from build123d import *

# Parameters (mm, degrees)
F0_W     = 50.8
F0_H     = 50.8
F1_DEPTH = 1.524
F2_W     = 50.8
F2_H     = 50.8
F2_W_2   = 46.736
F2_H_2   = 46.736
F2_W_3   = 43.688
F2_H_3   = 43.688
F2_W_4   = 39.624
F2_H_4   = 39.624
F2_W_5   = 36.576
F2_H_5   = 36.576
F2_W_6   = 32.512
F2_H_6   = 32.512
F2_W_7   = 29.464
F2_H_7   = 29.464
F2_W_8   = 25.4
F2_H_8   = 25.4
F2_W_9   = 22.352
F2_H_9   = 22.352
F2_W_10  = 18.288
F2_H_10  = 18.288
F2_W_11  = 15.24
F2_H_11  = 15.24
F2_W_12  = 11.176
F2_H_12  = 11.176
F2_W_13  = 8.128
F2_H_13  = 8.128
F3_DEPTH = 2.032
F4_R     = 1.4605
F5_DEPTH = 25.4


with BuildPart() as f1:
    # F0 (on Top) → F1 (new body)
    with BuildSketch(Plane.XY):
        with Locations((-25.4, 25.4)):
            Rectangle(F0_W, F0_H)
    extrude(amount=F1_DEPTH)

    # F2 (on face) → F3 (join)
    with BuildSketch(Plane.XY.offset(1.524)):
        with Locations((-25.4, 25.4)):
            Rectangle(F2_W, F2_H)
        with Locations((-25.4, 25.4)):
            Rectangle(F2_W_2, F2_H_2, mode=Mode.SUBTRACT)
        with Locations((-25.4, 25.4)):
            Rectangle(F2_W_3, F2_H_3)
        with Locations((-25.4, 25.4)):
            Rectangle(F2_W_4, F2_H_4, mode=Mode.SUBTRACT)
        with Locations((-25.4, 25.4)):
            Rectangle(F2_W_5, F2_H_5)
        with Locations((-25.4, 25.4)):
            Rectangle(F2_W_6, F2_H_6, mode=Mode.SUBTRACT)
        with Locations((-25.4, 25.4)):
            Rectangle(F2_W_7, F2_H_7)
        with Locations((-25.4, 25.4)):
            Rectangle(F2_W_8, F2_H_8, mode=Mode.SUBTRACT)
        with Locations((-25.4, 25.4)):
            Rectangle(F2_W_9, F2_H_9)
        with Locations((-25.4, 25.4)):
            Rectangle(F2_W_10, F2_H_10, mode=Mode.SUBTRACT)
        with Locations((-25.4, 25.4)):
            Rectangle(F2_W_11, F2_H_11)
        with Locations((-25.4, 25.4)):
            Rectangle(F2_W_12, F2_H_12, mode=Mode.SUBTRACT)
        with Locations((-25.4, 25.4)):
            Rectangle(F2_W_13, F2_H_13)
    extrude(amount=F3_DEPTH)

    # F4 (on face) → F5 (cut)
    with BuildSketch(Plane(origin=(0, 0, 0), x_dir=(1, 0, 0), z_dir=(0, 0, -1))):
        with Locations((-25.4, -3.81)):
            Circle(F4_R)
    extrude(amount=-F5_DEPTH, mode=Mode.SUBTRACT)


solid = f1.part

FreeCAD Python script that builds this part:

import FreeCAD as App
import Part
import Sketcher
from FreeCAD import Vector
Q = App.Units.Quantity


def add_polygon(sketch, points):
    """Adds a closed chain of lines whose ends are joined by coincident constraints."""
    first, n = sketch.GeometryCount, len(points)
    for a, b in zip(points, points[1:] + points[:1]):
        sketch.addGeometry(Part.LineSegment(App.Vector(*a, 0), App.Vector(*b, 0)), False)
    for i in range(n):
        sketch.addConstraint(Sketcher.Constraint("Coincident", first + i, 2, first + (i + 1) % n, 1))

doc = App.newDocument("Part")
params = doc.addObject("Spreadsheet::Sheet", "Params")
for row, (alias, value) in enumerate([
    ("sketch1_width", "2 in"),
    ("pad1_length", "0.06 in"),
    ("sketch2_width", "2 in"),
    ("sketch2_width2", "1 in"),
    ("sketch2_width3", "0.6 in"),
    ("sketch2_width4", "1.84 in"),
    ("sketch2_width5", "1.72 in"),
    ("pad2_length", "0.08 in"),
    ("sketch3_diameter", "0.115 in"),
    ("pocket1_length", "1 in"),
], start=1):
    params.set(f"A{row}", alias)
    params.set(f"B{row}", "=" + value)
    params.setAlias(f"B{row}", alias)

body = doc.addObject("PartDesign::Body", "Body")

# Sketch on XY plane
sketch1 = body.newObject("Sketcher::SketchObject", "Sketch")
sketch1.AttachmentSupport = (doc.getObject("XY_Plane"), [""])
sketch1.MapMode = "FlatFace"
add_polygon(sketch1, [(-50.8, 50.8), (-50.8, 0), (0, 0), (0, 50.8)])  # lines 0-3
sketch1.addConstraint([
    Sketcher.Constraint("Vertical", 0),
    Sketcher.Constraint("Horizontal", 1),
    Sketcher.Constraint("Vertical", 2),
    Sketcher.Constraint("Horizontal", 3),
    Sketcher.Constraint("Coincident", 1, 2, -1, 1),
    Sketcher.Constraint("Equal", 3, 0),
    Sketcher.Constraint("DistanceX", 1, 1, 1, 2, Q("2 in")),
])
sketch1.setExpression("Constraints[10]", "Params.sketch1_width")
pad1 = body.newObject("PartDesign::Pad", "Pad")
pad1.Profile = sketch1
pad1.setExpression("Length", "Params.pad1_length")

# Sketch on XY plane
sketch2 = body.newObject("Sketcher::SketchObject", "Sketch001")
sketch2.AttachmentSupport = (doc.getObject("XY_Plane"), [""])
sketch2.MapMode = "FlatFace"
sketch2.AttachmentOffset = App.Placement(Vector(0, 0, 0.06 * 25.4), App.Rotation())
add_polygon(sketch2, [(-50.8, 50.8), (-50.8, 0), (0, 0), (0, 50.8)])  # lines 0-3
add_polygon(sketch2, [(-2.032, 2.032), (-48.768, 2.032), (-48.768, 48.768), (-2.032, 48.768)])  # lines 4-7
add_polygon(sketch2, [(-47.244, 47.244), (-47.244, 3.556), (-3.556, 3.556), (-3.556, 47.244)])  # lines 8-11
add_polygon(sketch2, [(-5.588, 5.588), (-45.212, 5.588), (-45.212, 45.212), (-5.588, 45.212)])  # lines 12-15
add_polygon(sketch2, [(-43.688, 43.688), (-43.688, 7.112), (-7.112, 7.112), (-7.112, 43.688)])  # lines 16-19
add_polygon(sketch2, [(-9.144, 9.144), (-41.656, 9.144), (-41.656, 41.656), (-9.144, 41.656)])  # lines 20-23
add_polygon(sketch2, [(-40.132, 40.132), (-40.132, 10.668), (-10.668, 10.668), (-10.668, 40.132)])  # lines 24-27
add_polygon(sketch2, [(-12.7, 12.7), (-38.1, 12.7), (-38.1, 38.1), (-12.7, 38.1)])  # lines 28-31
add_polygon(sketch2, [(-36.576, 36.576), (-36.576, 14.224), (-14.224, 14.224), (-14.224, 36.576)])  # lines 32-35
add_polygon(sketch2, [(-16.256, 16.256), (-34.544, 16.256), (-34.544, 34.544), (-16.256, 34.544)])  # lines 36-39
add_polygon(sketch2, [(-33.02, 33.02), (-33.02, 17.78), (-17.78, 17.78), (-17.78, 33.02)])  # lines 40-43
add_polygon(sketch2, [(-19.812, 19.812), (-30.988, 19.812), (-30.988, 30.988), (-19.812, 30.988)])  # lines 44-47
add_polygon(sketch2, [(-29.464, 29.464), (-29.464, 21.336), (-21.336, 21.336), (-21.336, 29.464)])  # lines 48-51
sketch2.addConstraint([
    Sketcher.Constraint("Vertical", 0),
    Sketcher.Constraint("Horizontal", 1),
    Sketcher.Constraint("Vertical", 2),
    Sketcher.Constraint("Horizontal", 3),
    Sketcher.Constraint("Horizontal", 4),
    Sketcher.Constraint("Vertical", 5),
    Sketcher.Constraint("Horizontal", 6),
    Sketcher.Constraint("Vertical", 7),
    Sketcher.Constraint("Vertical", 8),
    Sketcher.Constraint("Horizontal", 9),
    Sketcher.Constraint("Vertical", 10),
    Sketcher.Constraint("Horizontal", 11),
    Sketcher.Constraint("Horizontal", 12),
    Sketcher.Constraint("Vertical", 13),
    Sketcher.Constraint("Horizontal", 14),
    Sketcher.Constraint("Vertical", 15),
    Sketcher.Constraint("Vertical", 16),
    Sketcher.Constraint("Horizontal", 17),
    Sketcher.Constraint("Vertical", 18),
    Sketcher.Constraint("Horizontal", 19),
    Sketcher.Constraint("Horizontal", 20),
    Sketcher.Constraint("Vertical", 21),
    Sketcher.Constraint("Horizontal", 22),
    Sketcher.Constraint("Vertical", 23),
    Sketcher.Constraint("Vertical", 24),
    Sketcher.Constraint("Horizontal", 25),
    Sketcher.Constraint("Vertical", 26),
    Sketcher.Constraint("Horizontal", 27),
    Sketcher.Constraint("Horizontal", 28),
    Sketcher.Constraint("Vertical", 29),
    Sketcher.Constraint("Horizontal", 30),
    Sketcher.Constraint("Vertical", 31),
    Sketcher.Constraint("Vertical", 32),
    Sketcher.Constraint("Horizontal", 33),
    Sketcher.Constraint("Vertical", 34),
    Sketcher.Constraint("Horizontal", 35),
    Sketcher.Constraint("Horizontal", 36),
    Sketcher.Constraint("Vertical", 37),
    Sketcher.Constraint("Horizontal", 38),
    Sketcher.Constraint("Vertical", 39),
    Sketcher.Constraint("Vertical", 40),
    Sketcher.Constraint("Horizontal", 41),
    Sketcher.Constraint("Vertical", 42),
    Sketcher.Constraint("Horizontal", 43),
    Sketcher.Constraint("Horizontal", 44),
    Sketcher.Constraint("Vertical", 45),
    Sketcher.Constraint("Horizontal", 46),
    Sketcher.Constraint("Vertical", 47),
    Sketcher.Constraint("Vertical", 48),
    Sketcher.Constraint("Horizontal", 49),
    Sketcher.Constraint("Vertical", 50),
    Sketcher.Constraint("Horizontal", 51),
    Sketcher.Constraint("Coincident", 1, 2, -1, 1),
    Sketcher.Constraint("Equal", 3, 0),
    Sketcher.Constraint("Equal", 6, 5),
    Sketcher.Constraint("Equal", 11, 8),
    Sketcher.Constraint("Equal", 14, 13),
    Sketcher.Constraint("Equal", 19, 16),
    Sketcher.Constraint("Equal", 22, 21),
    Sketcher.Constraint("Equal", 27, 24),
    Sketcher.Constraint("Equal", 30, 29),
    Sketcher.Constraint("Equal", 35, 32),
    Sketcher.Constraint("Equal", 38, 37),
    Sketcher.Constraint("Equal", 43, 40),
    Sketcher.Constraint("Equal", 46, 45),
    Sketcher.Constraint("Equal", 51, 48),
    Sketcher.Constraint("DistanceX", 1, 1, 1, 2, Q("2 in")),
    Sketcher.Constraint("DistanceX", 28, 2, 28, 1, Q("1 in")),
    Sketcher.Constraint("DistanceX", 41, 1, 41, 2, Q("0.6 in")),
    Sketcher.Constraint("DistanceX", 4, 2, 4, 1, Q("1.84 in")),
    Sketcher.Constraint("DistanceX", 9, 1, 9, 2, Q("1.72 in")),
    Sketcher.Constraint("DistanceX", 12, 2, 12, 1, Q("1.56 in")),
    Sketcher.Constraint("DistanceX", 17, 1, 17, 2, Q("1.44 in")),
    Sketcher.Constraint("DistanceX", 20, 2, 20, 1, Q("1.28 in")),
    Sketcher.Constraint("DistanceX", 25, 1, 25, 2, Q("1.16 in")),
    Sketcher.Constraint("DistanceX", 33, 1, 33, 2, Q("0.88 in")),
    Sketcher.Constraint("DistanceX", 36, 2, 36, 1, Q("0.72 in")),
    Sketcher.Constraint("DistanceX", 44, 2, 44, 1, Q("0.44 in")),
    Sketcher.Constraint("DistanceX", 49, 1, 49, 2, Q("0.32 in")),
    Sketcher.Constraint("DistanceX", 28, 2, -1, 1, Q("1.5 in")),
    Sketcher.Constraint("DistanceY", -1, 1, 28, 2, Q("0.5 in")),
    Sketcher.Constraint("DistanceX", 40, 2, -1, 1, Q("1.3 in")),
    Sketcher.Constraint("DistanceY", -1, 1, 40, 2, Q("0.7 in")),
    Sketcher.Constraint("DistanceX", 4, 2, 16, 2, Q("0.2 in")),
    Sketcher.Constraint("DistanceY", 4, 2, 16, 2, Q("0.2 in")),
    Sketcher.Constraint("DistanceY", 16, 2, 13, 2, Q("1.5 in")),
    Sketcher.Constraint("DistanceX", 12, 2, 24, 2, Q("0.2 in")),
    Sketcher.Constraint("DistanceY", 12, 2, 24, 2, Q("0.2 in")),
    Sketcher.Constraint("DistanceX", 20, 2, 32, 2, Q("0.2 in")),
    Sketcher.Constraint("DistanceY", 20, 2, 32, 2, Q("0.2 in")),
    Sketcher.Constraint("DistanceX", 36, 2, 48, 2, Q("0.2 in")),
    Sketcher.Constraint("DistanceY", 36, 2, 48, 2, Q("0.2 in")),
    Sketcher.Constraint("DistanceX", 4, 2, -1, 1, Q("1.92 in")),
    Sketcher.Constraint("DistanceY", -1, 1, 4, 2, Q("0.08 in")),
    Sketcher.Constraint("DistanceX", 8, 2, -1, 1, Q("1.86 in")),
    Sketcher.Constraint("DistanceY", -1, 1, 8, 2, Q("0.14 in")),
    Sketcher.Constraint("DistanceX", 12, 2, -1, 1, Q("1.78 in")),
    Sketcher.Constraint("DistanceX", 20, 2, -1, 1, Q("1.64 in")),
    Sketcher.Constraint("DistanceY", -1, 1, 20, 2, Q("0.36 in")),
    Sketcher.Constraint("DistanceX", 36, 2, -1, 1, Q("1.36 in")),
    Sketcher.Constraint("DistanceY", -1, 1, 36, 2, Q("0.64 in")),
    Sketcher.Constraint("DistanceX", 44, 2, -1, 1, Q("1.22 in")),
    Sketcher.Constraint("DistanceY", -1, 1, 44, 2, Q("0.78 in")),
])
sketch2.setExpression("Constraints[118]", "Params.sketch2_width")
sketch2.setExpression("Constraints[119]", "Params.sketch2_width2")
sketch2.setExpression("Constraints[120]", "Params.sketch2_width3")
sketch2.setExpression("Constraints[121]", "Params.sketch2_width4")
sketch2.setExpression("Constraints[122]", "Params.sketch2_width5")
pad2 = body.newObject("PartDesign::Pad", "Pad001")
pad2.Profile = sketch2
pad2.setExpression("Length", "Params.pad2_length")

# Sketch on XY plane
sketch3 = body.newObject("Sketcher::SketchObject", "Sketch002")
sketch3.AttachmentSupport = (doc.getObject("XY_Plane"), [""])
sketch3.MapMode = "FlatFace"
sketch3.addGeometry(Part.Circle(Vector(-25.4, 3.81, 0), Vector(0, 0, 1), 1.4605), False)
sketch3.addConstraint([
    Sketcher.Constraint("Diameter", 0, Q("0.115 in")),
    Sketcher.Constraint("DistanceX", 0, 3, -1, 1, Q("1 in")),
    Sketcher.Constraint("DistanceY", -1, 1, 0, 3, Q("0.15 in")),
])
sketch3.setExpression("Constraints[0]", "Params.sketch3_diameter")
pocket1 = body.newObject("PartDesign::Pocket", "Pocket")
pocket1.Profile = sketch3
pocket1.setExpression("Length", "Params.pocket1_length")
pocket1.Reversed = True

doc.recompute()
